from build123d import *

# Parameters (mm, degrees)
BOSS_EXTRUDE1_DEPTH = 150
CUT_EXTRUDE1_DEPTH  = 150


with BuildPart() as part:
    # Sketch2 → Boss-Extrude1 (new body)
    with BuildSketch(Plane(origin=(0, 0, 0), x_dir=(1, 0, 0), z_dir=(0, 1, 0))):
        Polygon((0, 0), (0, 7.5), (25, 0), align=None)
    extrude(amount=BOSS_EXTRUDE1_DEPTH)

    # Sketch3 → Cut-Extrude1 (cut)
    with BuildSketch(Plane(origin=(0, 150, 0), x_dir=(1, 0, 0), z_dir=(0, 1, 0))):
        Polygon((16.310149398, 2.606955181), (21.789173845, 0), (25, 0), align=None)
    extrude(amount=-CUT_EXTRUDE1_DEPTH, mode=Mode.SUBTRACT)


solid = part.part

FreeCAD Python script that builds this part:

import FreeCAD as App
import Part
import Sketcher
from FreeCAD import Vector

doc = App.newDocument("Part")
body = doc.addObject("PartDesign::Body", "Body")

sketch1 = body.newObject("Sketcher::SketchObject", "Sketch")
sketch1.AttachmentSupport = (doc.getObject("XZ_Plane"), [""])
sketch1.MapMode = "FlatFace"
sketch1.addGeometry(Part.LineSegment(Vector(0, -7.5, 0), Vector(0, 0, 0)), False)
sketch1.addGeometry(Part.LineSegment(Vector(0, 0, 0), Vector(25, 0, 0)), False)
sketch1.addGeometry(Part.LineSegment(Vector(25, 0, 0), Vector(0, -7.5, 0)), False)
sketch1.addConstraint(Sketcher.Constraint("Coincident", 0, 2, 1, 1))
sketch1.addConstraint(Sketcher.Constraint("Coincident", 1, 2, 2, 1))
sketch1.addConstraint(Sketcher.Constraint("Coincident", 2, 2, 0, 1))
sketch1.addConstraint(Sketcher.Constraint("Vertical", 0))
sketch1.addConstraint(Sketcher.Constraint("Horizontal", 1))
sketch1.addConstraint(Sketcher.Constraint("Coincident", 0, 2, -1, 1))
sketch1.addConstraint(Sketcher.Constraint("DistanceX", 1, 1, 1, 2, 25.0))
sketch1.addConstraint(Sketcher.Constraint("DistanceY", 0, 1, 0, 2, 7.5))
pad1 = body.newObject("PartDesign::Pad", "Pad")
pad1.Profile = sketch1
pad1.Length = 150
pad1.Reversed = True

sketch2 = body.newObject("Sketcher::SketchObject", "Sketch001")
sketch2.AttachmentSupport = (doc.getObject("XZ_Plane"), [""])
sketch2.MapMode = "FlatFace"
sketch2.AttachmentOffset = App.Placement(Vector(0, 0, -150), App.Rotation())
sketch2.addGeometry(Part.LineSegment(Vector(16.310149, -2.606955, 0), Vector(21.789174, 0, 0)), False)
sketch2.addGeometry(Part.LineSegment(Vector(21.789174, 0, 0), Vector(25, 0, 0)), False)
sketch2.addGeometry(Part.LineSegment(Vector(25, 0, 0), Vector(16.310149, -2.606955, 0)), False)
sketch2.addConstraint(Sketcher.Constraint("Coincident", 0, 2, 1, 1))
sketch2.addConstraint(Sketcher.Constraint("Coincident", 1, 2, 2, 1))
sketch2.addConstraint(Sketcher.Constraint("Coincident", 2, 2, 0, 1))
sketch2.addConstraint(Sketcher.Constraint("Horizontal", 1))
sketch2.addConstraint(Sketcher.Constraint("PointOnObject", 0, 2, -1))
sketch2.addConstraint(Sketcher.Constraint("DistanceX", -1, 1, 1, 2, 25.0))
sketch2.addConstraint(Sketcher.Constraint("Distance", 2, 9.07247))
sketch2.addConstraint(Sketcher.Constraint("DistanceX", 1, 1, 1, 2, 3.210826))
sketch2.addConstraint(Sketcher.Constraint("DistanceX", -1, 1, 2, 2, 16.310149))
pocket1 = body.newObject("PartDesign::Pocket", "Pocket")
pocket1.Profile = sketch2
pocket1.Length = 150
pocket1.Reversed = True

doc.recompute()
